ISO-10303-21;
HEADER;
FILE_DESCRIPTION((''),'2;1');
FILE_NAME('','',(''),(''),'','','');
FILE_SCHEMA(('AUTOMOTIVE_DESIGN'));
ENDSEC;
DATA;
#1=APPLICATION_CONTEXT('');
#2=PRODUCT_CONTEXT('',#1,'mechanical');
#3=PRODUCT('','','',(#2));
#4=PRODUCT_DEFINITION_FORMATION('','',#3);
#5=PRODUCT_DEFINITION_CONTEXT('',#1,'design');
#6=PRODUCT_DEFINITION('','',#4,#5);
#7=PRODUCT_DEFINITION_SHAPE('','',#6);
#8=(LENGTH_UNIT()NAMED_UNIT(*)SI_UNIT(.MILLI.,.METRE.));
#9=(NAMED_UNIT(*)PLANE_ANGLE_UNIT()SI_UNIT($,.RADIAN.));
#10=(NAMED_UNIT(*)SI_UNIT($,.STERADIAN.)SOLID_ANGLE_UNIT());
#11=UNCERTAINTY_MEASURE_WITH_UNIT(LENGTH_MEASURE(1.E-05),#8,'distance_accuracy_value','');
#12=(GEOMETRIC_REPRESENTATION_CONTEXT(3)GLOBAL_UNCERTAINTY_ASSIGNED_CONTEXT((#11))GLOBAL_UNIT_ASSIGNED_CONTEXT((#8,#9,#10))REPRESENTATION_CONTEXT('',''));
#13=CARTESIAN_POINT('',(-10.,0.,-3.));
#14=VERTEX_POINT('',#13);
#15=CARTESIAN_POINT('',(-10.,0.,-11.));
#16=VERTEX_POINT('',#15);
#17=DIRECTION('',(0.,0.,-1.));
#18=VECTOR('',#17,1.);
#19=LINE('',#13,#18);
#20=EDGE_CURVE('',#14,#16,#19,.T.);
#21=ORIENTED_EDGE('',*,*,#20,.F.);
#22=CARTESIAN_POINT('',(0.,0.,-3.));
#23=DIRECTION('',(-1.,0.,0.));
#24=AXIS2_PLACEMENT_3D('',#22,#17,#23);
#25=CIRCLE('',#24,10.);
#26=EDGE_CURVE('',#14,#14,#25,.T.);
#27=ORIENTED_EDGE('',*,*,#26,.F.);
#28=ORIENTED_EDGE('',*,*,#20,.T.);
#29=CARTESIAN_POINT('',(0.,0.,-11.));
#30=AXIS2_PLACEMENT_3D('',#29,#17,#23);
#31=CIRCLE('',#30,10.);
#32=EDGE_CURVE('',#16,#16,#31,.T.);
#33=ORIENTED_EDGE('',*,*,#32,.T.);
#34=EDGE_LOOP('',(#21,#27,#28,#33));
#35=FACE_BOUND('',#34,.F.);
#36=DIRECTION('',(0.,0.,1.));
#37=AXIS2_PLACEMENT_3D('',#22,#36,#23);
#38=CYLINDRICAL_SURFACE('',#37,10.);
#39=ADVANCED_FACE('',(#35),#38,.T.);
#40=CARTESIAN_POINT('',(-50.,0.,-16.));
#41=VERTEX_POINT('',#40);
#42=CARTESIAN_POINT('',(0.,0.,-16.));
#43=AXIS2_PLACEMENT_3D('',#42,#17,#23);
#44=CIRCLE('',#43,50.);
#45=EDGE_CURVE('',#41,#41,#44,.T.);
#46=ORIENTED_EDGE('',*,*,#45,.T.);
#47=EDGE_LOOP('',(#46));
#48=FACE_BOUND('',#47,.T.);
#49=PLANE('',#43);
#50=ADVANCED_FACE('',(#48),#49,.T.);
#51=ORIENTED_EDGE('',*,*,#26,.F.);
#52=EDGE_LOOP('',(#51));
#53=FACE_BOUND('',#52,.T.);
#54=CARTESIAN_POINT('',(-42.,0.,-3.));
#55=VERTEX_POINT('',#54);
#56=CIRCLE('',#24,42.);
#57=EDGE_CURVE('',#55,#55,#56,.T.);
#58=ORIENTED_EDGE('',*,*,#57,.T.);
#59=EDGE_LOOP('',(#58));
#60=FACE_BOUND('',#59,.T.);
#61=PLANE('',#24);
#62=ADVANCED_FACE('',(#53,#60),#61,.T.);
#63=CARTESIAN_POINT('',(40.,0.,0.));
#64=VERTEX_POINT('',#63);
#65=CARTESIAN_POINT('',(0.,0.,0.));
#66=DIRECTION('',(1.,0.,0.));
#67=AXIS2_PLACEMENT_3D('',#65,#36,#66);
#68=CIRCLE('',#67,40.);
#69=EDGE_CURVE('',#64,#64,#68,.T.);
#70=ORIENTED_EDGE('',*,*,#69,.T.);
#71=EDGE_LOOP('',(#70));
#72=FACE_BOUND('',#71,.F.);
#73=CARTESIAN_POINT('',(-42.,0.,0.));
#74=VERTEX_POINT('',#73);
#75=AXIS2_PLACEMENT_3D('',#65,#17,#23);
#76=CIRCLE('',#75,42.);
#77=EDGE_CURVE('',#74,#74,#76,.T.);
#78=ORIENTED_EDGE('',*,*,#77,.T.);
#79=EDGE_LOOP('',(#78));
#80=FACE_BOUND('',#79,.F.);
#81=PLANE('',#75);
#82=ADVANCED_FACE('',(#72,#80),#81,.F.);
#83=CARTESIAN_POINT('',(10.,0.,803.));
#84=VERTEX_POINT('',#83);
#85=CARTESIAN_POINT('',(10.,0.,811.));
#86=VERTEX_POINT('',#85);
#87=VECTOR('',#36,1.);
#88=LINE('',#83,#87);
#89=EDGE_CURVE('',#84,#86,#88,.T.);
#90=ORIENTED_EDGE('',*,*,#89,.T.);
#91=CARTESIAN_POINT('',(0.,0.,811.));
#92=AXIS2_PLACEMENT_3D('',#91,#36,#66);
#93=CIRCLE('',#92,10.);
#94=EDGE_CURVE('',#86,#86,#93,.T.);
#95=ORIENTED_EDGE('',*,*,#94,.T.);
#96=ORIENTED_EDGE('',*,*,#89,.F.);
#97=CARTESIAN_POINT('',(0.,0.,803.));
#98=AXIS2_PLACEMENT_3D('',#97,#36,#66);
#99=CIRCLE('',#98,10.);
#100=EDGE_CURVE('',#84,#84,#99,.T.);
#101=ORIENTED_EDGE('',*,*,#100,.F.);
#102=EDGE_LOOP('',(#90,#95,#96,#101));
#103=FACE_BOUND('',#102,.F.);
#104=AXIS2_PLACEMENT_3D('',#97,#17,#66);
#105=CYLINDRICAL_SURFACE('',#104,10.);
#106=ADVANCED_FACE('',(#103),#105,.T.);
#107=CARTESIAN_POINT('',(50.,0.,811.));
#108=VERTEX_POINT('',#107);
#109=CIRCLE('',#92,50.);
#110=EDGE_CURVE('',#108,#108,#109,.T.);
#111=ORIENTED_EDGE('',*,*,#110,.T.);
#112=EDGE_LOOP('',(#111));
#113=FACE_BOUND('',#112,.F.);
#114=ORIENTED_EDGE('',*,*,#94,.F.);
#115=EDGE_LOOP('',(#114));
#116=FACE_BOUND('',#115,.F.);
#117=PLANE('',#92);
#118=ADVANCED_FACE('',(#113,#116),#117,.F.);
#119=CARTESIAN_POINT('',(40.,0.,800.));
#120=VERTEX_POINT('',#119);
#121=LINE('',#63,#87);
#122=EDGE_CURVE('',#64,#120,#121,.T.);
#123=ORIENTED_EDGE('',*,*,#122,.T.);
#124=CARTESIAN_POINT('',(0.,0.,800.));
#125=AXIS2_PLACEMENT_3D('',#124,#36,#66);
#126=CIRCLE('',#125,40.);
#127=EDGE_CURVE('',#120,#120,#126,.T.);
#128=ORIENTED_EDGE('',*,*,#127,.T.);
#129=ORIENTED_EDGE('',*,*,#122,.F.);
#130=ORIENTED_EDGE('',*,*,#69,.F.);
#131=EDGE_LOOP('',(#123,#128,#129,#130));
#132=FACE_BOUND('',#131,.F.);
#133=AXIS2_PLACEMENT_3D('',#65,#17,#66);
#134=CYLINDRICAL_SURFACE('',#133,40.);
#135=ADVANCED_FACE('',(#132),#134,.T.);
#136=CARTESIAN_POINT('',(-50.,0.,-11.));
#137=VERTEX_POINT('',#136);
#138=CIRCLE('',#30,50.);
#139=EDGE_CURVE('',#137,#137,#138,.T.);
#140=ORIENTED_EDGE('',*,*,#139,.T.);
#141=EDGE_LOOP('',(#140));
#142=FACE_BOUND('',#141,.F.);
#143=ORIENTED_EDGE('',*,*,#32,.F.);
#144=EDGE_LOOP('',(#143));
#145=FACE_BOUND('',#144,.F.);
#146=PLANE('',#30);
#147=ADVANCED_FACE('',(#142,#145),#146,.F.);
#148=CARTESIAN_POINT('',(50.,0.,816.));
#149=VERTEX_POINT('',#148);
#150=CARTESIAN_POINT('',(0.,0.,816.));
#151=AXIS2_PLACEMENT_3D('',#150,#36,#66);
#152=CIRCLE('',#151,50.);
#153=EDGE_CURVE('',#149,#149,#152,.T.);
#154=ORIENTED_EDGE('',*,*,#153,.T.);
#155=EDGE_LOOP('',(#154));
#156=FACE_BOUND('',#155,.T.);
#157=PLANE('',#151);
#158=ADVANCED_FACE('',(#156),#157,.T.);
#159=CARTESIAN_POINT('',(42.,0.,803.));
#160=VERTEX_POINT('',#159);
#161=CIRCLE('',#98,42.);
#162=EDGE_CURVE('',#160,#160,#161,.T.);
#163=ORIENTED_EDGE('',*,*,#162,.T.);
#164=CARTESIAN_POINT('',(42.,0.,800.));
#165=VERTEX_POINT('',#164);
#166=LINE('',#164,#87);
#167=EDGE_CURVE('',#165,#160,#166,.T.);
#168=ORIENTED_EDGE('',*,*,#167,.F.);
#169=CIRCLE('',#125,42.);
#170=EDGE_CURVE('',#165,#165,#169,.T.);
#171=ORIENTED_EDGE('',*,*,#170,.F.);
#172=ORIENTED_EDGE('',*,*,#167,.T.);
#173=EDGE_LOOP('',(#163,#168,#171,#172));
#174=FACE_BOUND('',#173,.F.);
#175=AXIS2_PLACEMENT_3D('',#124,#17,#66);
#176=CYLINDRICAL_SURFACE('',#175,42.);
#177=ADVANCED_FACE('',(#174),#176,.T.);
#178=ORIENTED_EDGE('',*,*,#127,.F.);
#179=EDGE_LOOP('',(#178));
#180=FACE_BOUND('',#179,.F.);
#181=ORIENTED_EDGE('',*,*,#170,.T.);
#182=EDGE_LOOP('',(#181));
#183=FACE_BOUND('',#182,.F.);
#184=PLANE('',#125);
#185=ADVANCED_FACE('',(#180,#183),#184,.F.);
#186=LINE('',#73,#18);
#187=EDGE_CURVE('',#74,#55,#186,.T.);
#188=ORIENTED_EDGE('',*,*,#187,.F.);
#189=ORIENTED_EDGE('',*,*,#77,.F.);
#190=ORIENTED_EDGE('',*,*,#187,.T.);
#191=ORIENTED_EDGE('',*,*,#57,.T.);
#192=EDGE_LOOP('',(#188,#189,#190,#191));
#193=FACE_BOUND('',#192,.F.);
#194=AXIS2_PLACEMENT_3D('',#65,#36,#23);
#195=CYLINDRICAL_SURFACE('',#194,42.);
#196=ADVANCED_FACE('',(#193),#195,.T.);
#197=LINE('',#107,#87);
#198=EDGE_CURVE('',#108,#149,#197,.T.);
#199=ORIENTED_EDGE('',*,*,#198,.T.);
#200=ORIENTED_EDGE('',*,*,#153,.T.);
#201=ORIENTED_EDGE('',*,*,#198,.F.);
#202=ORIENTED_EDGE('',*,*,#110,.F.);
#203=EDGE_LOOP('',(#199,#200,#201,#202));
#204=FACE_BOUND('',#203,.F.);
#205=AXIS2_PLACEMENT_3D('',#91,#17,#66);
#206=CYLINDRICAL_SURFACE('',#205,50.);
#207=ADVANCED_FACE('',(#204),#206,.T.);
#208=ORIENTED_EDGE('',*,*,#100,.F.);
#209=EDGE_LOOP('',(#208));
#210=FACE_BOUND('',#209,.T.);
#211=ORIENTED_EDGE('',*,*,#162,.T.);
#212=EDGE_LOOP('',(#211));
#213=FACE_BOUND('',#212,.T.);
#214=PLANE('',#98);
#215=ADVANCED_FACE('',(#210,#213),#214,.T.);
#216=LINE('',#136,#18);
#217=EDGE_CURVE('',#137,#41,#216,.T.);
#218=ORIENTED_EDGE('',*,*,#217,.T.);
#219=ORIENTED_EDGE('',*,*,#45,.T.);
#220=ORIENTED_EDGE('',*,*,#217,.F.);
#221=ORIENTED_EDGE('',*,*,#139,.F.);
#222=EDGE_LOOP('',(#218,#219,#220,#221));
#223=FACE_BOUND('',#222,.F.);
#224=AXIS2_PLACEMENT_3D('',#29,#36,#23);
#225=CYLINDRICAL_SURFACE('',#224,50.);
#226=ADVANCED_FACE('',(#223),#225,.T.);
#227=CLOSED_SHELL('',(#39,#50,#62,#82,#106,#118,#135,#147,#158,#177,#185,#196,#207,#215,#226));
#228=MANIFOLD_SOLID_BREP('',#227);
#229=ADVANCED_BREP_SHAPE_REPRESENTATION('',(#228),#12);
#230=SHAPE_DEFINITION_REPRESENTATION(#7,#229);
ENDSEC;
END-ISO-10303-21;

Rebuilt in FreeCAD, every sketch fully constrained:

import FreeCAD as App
import Part
import Sketcher
from FreeCAD import Vector
Q = App.Units.Quantity

doc = App.newDocument("Part")
body = doc.addObject("PartDesign::Body", "Body")

# Sketch on XY plane
sketch1 = body.newObject("Sketcher::SketchObject", "Sketch")
sketch1.AttachmentSupport = (doc.getObject("XY_Plane"), [""])
sketch1.MapMode = "FlatFace"
sketch1.addGeometry(Part.Circle(Vector(0, 0, 0), Vector(0, 0, 1), 40), False)
sketch1.addConstraint([
    Sketcher.Constraint("Coincident", 0, 3, -1, 1),
    Sketcher.Constraint("Diameter", 0, Q("80 mm")),
])
pad1 = body.newObject("PartDesign::Pad", "Pad")
pad1.Profile = sketch1
pad1.Length = 800

# Sketch on XY plane
sketch2 = body.newObject("Sketcher::SketchObject", "Sketch001")
sketch2.AttachmentSupport = (doc.getObject("XY_Plane"), [""])
sketch2.MapMode = "FlatFace"
sketch2.AttachmentOffset = App.Placement(Vector(0, 0, 800), App.Rotation())
sketch2.addGeometry(Part.Circle(Vector(0, 0, 0), Vector(0, 0, 1), 42), False)
sketch2.addConstraint([
    Sketcher.Constraint("Coincident", 0, 3, -1, 1),
    Sketcher.Constraint("Diameter", 0, Q("84 mm")),
])
pad2 = body.newObject("PartDesign::Pad", "Pad001")
pad2.Profile = sketch2
pad2.Length = 3

# Sketch on XY plane
sketch3 = body.newObject("Sketcher::SketchObject", "Sketch002")
sketch3.AttachmentSupport = (doc.getObject("XY_Plane"), [""])
sketch3.MapMode = "FlatFace"
sketch3.addGeometry(Part.Circle(Vector(0, 0, 0), Vector(0, 0, 1), 42), False)
sketch3.addConstraint([
    Sketcher.Constraint("Coincident", 0, 3, -1, 1),
    Sketcher.Constraint("Diameter", 0, Q("84 mm")),
])
pad3 = body.newObject("PartDesign::Pad", "Pad002")
pad3.Profile = sketch3
pad3.Length = 3
pad3.Reversed = True

# Sketch on XY plane
sketch4 = body.newObject("Sketcher::SketchObject", "Sketch003")
sketch4.AttachmentSupport = (doc.getObject("XY_Plane"), [""])
sketch4.MapMode = "FlatFace"
sketch4.AttachmentOffset = App.Placement(Vector(0, 0, 803), App.Rotation())
sketch4.addGeometry(Part.Circle(Vector(0, 0, 0), Vector(0, 0, 1), 10), False)
sketch4.addConstraint([
    Sketcher.Constraint("Coincident", 0, 3, -1, 1),
    Sketcher.Constraint("Diameter", 0, Q("20 mm")),
])
pad4 = body.newObject("PartDesign::Pad", "Pad003")
pad4.Profile = sketch4
pad4.Length = 8

# Sketch on XY plane
sketch5 = body.newObject("Sketcher::SketchObject", "Sketch004")
sketch5.AttachmentSupport = (doc.getObject("XY_Plane"), [""])
sketch5.MapMode = "FlatFace"
sketch5.AttachmentOffset = App.Placement(Vector(0, 0, -3), App.Rotation())
sketch5.addGeometry(Part.Circle(Vector(0, 0, 0), Vector(0, 0, 1), 10), False)
sketch5.addConstraint([
    Sketcher.Constraint("Coincident", 0, 3, -1, 1),
    Sketcher.Constraint("Diameter", 0, Q("20 mm")),
])
pad5 = body.newObject("PartDesign::Pad", "Pad004")
pad5.Profile = sketch5
pad5.Length = 8
pad5.Reversed = True

# Sketch on XY plane
sketch6 = body.newObject("Sketcher::SketchObject", "Sketch005")
sketch6.AttachmentSupport = (doc.getObject("XY_Plane"), [""])
sketch6.MapMode = "FlatFace"
sketch6.AttachmentOffset = App.Placement(Vector(0, 0, -11), App.Rotation())
sketch6.addGeometry(Part.Circle(Vector(0, 0, 0), Vector(0, 0, 1), 50), False)
sketch6.addConstraint([
    Sketcher.Constraint("Coincident", 0, 3, -1, 1),
    Sketcher.Constraint("Diameter", 0, Q("100 mm")),
])
pad6 = body.newObject("PartDesign::Pad", "Pad005")
pad6.Profile = sketch6
pad6.Length = 5
pad6.Reversed = True

# Sketch on XY plane
sketch7 = body.newObject("Sketcher::SketchObject", "Sketch006")
sketch7.AttachmentSupport = (doc.getObject("XY_Plane"), [""])
sketch7.MapMode = "FlatFace"
sketch7.AttachmentOffset = App.Placement(Vector(0, 0, 811), App.Rotation())
sketch7.addGeometry(Part.Circle(Vector(0, 0, 0), Vector(0, 0, 1), 50), False)
sketch7.addConstraint([
    Sketcher.Constraint("Coincident", 0, 3, -1, 1),
    Sketcher.Constraint("Diameter", 0, Q("100 mm")),
])
pad7 = body.newObject("PartDesign::Pad", "Pad006")
pad7.Profile = sketch7
pad7.Length = 5

doc.recompute()
